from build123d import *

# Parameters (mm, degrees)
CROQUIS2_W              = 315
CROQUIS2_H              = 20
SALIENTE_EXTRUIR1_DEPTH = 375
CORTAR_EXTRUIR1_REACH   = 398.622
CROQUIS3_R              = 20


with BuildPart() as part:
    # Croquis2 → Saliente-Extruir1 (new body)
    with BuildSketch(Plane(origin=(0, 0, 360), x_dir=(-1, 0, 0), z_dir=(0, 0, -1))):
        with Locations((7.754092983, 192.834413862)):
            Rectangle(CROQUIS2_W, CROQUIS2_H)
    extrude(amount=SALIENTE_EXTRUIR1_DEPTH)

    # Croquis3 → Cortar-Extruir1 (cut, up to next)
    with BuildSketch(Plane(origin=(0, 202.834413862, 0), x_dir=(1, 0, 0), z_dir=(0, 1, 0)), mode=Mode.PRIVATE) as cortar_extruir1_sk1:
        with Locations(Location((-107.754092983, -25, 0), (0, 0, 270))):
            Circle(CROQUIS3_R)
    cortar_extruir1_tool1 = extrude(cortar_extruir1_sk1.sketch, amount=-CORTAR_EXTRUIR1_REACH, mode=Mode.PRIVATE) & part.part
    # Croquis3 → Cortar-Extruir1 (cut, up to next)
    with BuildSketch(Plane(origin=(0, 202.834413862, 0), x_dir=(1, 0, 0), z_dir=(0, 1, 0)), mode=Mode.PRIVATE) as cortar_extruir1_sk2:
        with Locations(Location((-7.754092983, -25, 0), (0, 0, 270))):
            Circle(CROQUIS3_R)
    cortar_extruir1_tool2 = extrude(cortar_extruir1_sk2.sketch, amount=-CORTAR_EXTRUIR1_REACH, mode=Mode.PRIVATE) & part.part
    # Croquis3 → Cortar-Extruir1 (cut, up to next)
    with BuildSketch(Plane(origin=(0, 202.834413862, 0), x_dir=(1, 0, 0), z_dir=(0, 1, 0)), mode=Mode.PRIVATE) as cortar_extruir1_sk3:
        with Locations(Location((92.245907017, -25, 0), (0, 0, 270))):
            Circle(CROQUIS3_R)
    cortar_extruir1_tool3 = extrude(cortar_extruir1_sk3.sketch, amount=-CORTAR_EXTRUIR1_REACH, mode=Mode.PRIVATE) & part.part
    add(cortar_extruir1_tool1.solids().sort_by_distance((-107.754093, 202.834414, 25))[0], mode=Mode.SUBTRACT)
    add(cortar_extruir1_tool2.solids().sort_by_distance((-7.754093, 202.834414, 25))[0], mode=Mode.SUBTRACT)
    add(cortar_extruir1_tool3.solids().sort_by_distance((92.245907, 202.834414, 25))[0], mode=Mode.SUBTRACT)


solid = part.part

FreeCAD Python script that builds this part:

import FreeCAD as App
import Part
import Sketcher

V = App.Vector

doc = App.newDocument("Part")
body = doc.addObject("PartDesign::Body", "Body")

sketch1 = doc.addObject("Sketcher::SketchObject", "Sketch")
body.addObject(sketch1)
sketch1.AttachmentSupport = (doc.XY_Plane, [""])
sketch1.MapMode = "FlatFace"
sketch1.AttachmentOffset = App.Placement(V(0, 0, 360), App.Rotation())
sketch1.addGeometry(Part.LineSegment(V(150, 203, 0), V(150, 183, 0)), False)
sketch1.addGeometry(Part.LineSegment(V(150, 183, 0), V(-165, 183, 0)), False)
sketch1.addGeometry(Part.LineSegment(V(-165, 183, 0), V(-165, 203, 0)), False)
sketch1.addGeometry(Part.LineSegment(V(-165, 203, 0), V(150, 203, 0)), False)
sketch1.addConstraint(Sketcher.Constraint("Coincident", 0, 2, 1, 1))
sketch1.addConstraint(Sketcher.Constraint("Coincident", 1, 2, 2, 1))
sketch1.addConstraint(Sketcher.Constraint("Coincident", 2, 2, 3, 1))
sketch1.addConstraint(Sketcher.Constraint("Coincident", 3, 2, 0, 1))
sketch1.addConstraint(Sketcher.Constraint("Vertical", 0))
sketch1.addConstraint(Sketcher.Constraint("Horizontal", 1))
sketch1.addConstraint(Sketcher.Constraint("Vertical", 2))
sketch1.addConstraint(Sketcher.Constraint("Horizontal", 3))
sketch1.addConstraint(Sketcher.Constraint("DistanceX", 1, 2, 1, 1, 315.0))
sketch1.addConstraint(Sketcher.Constraint("DistanceY", 0, 2, 0, 1, 20.0))
sketch1.addConstraint(Sketcher.Constraint("DistanceX", -1, 1, 0, 2, 149.745907))
sketch1.addConstraint(Sketcher.Constraint("DistanceY", -1, 1, 0, 2, 182.834414))
pad1 = doc.addObject("PartDesign::Pad", "Pad")
body.addObject(pad1)
pad1.Profile = sketch1
pad1.Length = 375
pad1.Reversed = True

sketch2 = doc.addObject("Sketcher::SketchObject", "Sketch001")
body.addObject(sketch2)
sketch2.AttachmentSupport = (doc.XZ_Plane, [""])
sketch2.MapMode = "FlatFace"
sketch2.AttachmentOffset = App.Placement(V(0, 0, -202.834414), App.Rotation())
sketch2.addGeometry(Part.Circle(V(-108, 25, 0), V(0, 0, 1), 20), False)
sketch2.addConstraint(Sketcher.Constraint("Diameter", 0, 40.0))
sketch2.addConstraint(Sketcher.Constraint("DistanceY", -1, 1, 0, 3, 25.0))
sketch2.addConstraint(Sketcher.Constraint("DistanceX", 0, 3, -1, 1, 107.754093))
pocket1 = doc.addObject("PartDesign::Pocket", "Pocket")
body.addObject(pocket1)
pocket1.Profile = sketch2
pocket1.Type = "UpToFirst"
pocket1.Reversed = True

sketch3 = doc.addObject("Sketcher::SketchObject", "Sketch002")
body.addObject(sketch3)
sketch3.AttachmentSupport = (doc.XZ_Plane, [""])
sketch3.MapMode = "FlatFace"
sketch3.AttachmentOffset = App.Placement(V(0, 0, -202.834414), App.Rotation())
sketch3.addGeometry(Part.Circle(V(-8, 25, 0), V(0, 0, 1), 20), False)
sketch3.addConstraint(Sketcher.Constraint("Diameter", 0, 40.0))
sketch3.addConstraint(Sketcher.Constraint("DistanceY", -1, 1, 0, 3, 25.0))
sketch3.addConstraint(Sketcher.Constraint("DistanceX", 0, 3, -1, 1, 7.754093))
pocket2 = doc.addObject("PartDesign::Pocket", "Pocket001")
body.addObject(pocket2)
pocket2.Profile = sketch3
pocket2.Type = "UpToFirst"
pocket2.Reversed = True

sketch4 = doc.addObject("Sketcher::SketchObject", "Sketch003")
body.addObject(sketch4)
sketch4.AttachmentSupport = (doc.XZ_Plane, [""])
sketch4.MapMode = "FlatFace"
sketch4.AttachmentOffset = App.Placement(V(0, 0, -202.834414), App.Rotation())
sketch4.addGeometry(Part.Circle(V(92, 25, 0), V(0, 0, 1), 20), False)
sketch4.addConstraint(Sketcher.Constraint("Diameter", 0, 40.0))
sketch4.addConstraint(Sketcher.Constraint("DistanceY", -1, 1, 0, 3, 25.0))
sketch4.addConstraint(Sketcher.Constraint("DistanceX", -1, 1, 0, 3, 92.245907))
pocket3 = doc.addObject("PartDesign::Pocket", "Pocket002")
body.addObject(pocket3)
pocket3.Profile = sketch4
pocket3.Type = "UpToFirst"
pocket3.Reversed = True

doc.recompute()
